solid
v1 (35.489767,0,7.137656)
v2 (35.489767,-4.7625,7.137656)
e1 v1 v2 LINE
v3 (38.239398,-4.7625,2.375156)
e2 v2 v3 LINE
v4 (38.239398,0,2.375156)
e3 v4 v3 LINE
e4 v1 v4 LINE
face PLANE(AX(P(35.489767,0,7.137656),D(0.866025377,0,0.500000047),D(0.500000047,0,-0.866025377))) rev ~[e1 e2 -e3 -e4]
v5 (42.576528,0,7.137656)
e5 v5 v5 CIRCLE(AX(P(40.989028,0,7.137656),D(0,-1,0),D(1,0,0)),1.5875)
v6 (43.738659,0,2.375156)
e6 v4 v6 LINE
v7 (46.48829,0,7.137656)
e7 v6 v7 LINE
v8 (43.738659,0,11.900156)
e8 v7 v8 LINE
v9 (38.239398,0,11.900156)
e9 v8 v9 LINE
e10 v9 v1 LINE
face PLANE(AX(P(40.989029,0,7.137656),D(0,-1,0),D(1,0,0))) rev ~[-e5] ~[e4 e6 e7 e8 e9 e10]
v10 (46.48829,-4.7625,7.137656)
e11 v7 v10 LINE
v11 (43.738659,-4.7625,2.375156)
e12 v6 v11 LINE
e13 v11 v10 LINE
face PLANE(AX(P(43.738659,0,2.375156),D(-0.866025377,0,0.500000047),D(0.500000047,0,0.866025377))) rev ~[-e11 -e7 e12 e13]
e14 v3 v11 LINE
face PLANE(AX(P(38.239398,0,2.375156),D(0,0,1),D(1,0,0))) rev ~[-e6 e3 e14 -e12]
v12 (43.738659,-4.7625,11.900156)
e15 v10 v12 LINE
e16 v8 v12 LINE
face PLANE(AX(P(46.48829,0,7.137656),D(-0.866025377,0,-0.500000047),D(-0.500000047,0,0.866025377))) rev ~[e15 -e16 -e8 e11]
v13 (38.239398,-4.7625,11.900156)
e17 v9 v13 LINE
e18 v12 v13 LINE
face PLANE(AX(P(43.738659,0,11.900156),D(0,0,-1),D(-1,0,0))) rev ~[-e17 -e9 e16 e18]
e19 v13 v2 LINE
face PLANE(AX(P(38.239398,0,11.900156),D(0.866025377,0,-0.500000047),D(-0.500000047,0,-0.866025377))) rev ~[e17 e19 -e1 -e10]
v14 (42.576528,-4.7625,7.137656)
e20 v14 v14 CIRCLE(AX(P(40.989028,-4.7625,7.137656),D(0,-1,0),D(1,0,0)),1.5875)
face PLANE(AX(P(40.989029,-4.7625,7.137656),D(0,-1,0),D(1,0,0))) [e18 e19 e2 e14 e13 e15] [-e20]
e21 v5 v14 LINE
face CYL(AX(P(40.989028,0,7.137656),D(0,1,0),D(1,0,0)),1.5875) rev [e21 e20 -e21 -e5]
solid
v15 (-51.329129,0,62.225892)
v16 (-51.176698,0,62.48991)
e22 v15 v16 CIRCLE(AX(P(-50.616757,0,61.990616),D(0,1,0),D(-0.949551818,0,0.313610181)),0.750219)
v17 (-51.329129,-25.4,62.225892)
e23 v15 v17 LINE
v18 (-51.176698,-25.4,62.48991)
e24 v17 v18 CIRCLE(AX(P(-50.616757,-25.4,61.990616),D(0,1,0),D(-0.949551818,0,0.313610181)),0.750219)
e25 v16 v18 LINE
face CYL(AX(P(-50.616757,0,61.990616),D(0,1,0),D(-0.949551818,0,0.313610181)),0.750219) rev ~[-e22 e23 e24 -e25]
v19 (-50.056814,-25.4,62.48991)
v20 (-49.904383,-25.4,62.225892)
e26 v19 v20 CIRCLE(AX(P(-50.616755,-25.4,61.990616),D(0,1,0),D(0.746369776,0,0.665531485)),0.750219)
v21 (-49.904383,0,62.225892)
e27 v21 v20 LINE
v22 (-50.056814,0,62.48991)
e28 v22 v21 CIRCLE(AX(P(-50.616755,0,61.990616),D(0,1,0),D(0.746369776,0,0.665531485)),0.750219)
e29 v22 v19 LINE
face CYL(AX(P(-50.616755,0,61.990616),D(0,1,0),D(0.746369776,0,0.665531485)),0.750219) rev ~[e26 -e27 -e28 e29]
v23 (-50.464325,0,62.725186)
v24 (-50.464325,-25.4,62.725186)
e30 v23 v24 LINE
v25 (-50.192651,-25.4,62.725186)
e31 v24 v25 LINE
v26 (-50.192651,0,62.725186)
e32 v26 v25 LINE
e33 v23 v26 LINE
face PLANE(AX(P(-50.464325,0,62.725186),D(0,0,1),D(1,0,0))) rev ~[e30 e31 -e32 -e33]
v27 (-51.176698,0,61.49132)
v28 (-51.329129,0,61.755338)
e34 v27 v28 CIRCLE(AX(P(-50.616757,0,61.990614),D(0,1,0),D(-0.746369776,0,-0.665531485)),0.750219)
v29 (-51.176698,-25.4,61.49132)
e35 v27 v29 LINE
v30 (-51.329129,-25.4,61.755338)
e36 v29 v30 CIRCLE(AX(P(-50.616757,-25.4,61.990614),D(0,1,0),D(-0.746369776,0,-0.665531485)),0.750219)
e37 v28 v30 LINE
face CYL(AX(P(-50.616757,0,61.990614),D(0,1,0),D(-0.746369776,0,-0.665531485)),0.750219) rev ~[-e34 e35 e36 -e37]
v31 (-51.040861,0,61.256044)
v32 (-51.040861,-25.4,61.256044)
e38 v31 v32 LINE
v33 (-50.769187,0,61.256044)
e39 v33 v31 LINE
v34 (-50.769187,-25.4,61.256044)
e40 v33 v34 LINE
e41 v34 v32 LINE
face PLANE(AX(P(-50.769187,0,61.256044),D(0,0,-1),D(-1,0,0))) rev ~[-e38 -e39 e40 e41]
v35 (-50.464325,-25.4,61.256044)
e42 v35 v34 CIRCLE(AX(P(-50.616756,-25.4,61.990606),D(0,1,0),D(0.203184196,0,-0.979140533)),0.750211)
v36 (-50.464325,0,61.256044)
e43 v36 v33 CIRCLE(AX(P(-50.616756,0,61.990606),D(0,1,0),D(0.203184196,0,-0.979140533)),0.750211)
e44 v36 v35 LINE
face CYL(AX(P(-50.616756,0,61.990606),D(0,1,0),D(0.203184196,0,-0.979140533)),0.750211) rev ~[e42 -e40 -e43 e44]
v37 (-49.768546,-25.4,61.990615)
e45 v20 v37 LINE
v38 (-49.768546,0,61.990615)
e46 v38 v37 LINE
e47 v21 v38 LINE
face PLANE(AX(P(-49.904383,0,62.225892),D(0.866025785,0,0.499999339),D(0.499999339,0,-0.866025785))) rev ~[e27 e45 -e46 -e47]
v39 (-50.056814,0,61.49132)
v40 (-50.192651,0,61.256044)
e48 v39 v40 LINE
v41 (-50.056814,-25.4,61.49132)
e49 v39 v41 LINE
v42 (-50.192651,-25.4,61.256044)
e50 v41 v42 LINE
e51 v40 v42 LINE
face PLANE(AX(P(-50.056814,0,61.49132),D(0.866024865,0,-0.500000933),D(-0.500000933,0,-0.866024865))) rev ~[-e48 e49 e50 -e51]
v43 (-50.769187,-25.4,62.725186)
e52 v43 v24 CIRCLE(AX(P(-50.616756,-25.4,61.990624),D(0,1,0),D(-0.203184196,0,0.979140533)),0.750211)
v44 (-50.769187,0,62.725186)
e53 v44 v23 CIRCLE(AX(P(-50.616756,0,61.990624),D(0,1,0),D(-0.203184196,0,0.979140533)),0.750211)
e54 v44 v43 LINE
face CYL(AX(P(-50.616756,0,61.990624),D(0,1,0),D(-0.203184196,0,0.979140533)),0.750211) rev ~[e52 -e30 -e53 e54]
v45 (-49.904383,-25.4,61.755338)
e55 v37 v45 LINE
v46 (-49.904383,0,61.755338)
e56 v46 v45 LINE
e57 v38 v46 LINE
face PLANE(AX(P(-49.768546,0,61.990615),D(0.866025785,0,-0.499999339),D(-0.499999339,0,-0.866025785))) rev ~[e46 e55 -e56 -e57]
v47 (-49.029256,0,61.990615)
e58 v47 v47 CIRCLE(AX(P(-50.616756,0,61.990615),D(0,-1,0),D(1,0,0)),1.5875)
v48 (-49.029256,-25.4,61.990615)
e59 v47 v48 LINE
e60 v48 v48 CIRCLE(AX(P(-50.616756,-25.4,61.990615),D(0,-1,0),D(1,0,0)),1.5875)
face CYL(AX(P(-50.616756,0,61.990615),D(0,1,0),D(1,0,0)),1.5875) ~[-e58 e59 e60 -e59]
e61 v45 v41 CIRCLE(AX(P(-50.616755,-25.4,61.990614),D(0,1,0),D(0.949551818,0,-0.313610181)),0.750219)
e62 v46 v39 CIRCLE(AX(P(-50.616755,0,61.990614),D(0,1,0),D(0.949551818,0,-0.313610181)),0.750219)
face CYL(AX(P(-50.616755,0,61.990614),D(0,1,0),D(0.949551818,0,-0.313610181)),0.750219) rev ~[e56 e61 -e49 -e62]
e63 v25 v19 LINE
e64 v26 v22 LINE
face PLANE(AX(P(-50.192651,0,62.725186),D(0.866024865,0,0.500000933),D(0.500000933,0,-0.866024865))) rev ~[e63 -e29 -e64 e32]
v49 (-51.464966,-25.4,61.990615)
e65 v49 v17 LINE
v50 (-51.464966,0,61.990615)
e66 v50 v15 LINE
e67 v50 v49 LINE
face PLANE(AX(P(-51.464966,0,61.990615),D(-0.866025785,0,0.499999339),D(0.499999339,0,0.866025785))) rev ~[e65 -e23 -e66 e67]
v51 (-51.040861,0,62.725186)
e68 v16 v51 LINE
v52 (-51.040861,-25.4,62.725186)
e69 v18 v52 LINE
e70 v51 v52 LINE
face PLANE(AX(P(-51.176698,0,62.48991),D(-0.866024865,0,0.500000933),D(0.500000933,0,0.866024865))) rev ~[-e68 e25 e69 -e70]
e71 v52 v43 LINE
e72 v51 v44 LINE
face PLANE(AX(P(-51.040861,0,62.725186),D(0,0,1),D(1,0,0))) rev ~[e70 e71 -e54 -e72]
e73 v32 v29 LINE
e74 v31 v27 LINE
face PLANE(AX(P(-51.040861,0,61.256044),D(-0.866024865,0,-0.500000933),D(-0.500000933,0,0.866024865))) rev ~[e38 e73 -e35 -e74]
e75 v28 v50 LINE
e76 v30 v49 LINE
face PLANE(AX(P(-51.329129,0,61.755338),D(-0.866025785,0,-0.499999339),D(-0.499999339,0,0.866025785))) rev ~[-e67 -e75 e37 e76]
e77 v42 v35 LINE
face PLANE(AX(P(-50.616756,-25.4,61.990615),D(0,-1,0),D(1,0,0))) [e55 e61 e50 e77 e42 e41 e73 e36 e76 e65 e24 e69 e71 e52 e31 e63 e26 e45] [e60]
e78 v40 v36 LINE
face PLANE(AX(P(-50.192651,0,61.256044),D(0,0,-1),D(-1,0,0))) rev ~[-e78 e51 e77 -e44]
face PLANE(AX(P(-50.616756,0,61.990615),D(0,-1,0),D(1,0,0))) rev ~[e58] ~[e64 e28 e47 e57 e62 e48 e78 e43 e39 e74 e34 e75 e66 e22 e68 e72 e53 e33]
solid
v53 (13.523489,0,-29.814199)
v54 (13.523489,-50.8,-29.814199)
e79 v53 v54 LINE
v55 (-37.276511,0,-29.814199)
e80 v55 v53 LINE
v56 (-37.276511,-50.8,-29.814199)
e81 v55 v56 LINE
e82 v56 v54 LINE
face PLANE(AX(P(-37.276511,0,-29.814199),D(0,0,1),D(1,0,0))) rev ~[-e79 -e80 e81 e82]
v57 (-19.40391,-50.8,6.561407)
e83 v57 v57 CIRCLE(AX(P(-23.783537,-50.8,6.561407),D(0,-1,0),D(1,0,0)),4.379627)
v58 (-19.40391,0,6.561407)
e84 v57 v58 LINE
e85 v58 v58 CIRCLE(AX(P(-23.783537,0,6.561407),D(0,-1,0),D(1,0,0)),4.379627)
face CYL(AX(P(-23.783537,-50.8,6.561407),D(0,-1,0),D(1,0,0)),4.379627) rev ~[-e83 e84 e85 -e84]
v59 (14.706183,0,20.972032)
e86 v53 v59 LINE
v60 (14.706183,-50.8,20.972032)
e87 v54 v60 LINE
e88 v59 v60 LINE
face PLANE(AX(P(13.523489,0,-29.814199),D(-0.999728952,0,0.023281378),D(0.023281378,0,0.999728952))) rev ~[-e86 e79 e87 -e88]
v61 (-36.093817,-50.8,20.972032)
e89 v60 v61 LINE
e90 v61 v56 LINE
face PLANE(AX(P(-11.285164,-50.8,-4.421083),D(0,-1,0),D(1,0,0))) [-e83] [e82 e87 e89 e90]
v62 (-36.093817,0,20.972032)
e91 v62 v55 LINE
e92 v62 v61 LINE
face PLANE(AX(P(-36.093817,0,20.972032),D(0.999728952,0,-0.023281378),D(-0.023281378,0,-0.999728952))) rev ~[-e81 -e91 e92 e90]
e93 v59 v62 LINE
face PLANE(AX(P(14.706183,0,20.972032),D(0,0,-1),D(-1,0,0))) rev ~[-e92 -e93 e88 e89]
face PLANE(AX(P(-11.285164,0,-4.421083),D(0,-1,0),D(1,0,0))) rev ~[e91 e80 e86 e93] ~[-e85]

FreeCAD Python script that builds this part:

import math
import FreeCAD as App
import Part
import Sketcher
Q = App.Units.Quantity


def add_polygon(sketch, points):
    """Adds a closed chain of lines whose ends are joined by coincident constraints."""
    first, n = sketch.GeometryCount, len(points)
    for a, b in zip(points, points[1:] + points[:1]):
        sketch.addGeometry(Part.LineSegment(App.Vector(*a, 0), App.Vector(*b, 0)), False)
    for i in range(n):
        sketch.addConstraint(Sketcher.Constraint("Coincident", first + i, 2, first + (i + 1) % n, 1))

doc = App.newDocument("Part")
body = doc.addObject("PartDesign::Body", "Body")

# Sketch on XZ plane
sketch1 = body.newObject("Sketcher::SketchObject", "Sketch")
sketch1.AttachmentSupport = (doc.getObject("XZ_Plane"), [""])
sketch1.MapMode = "FlatFace"
add_polygon(sketch1, [(15, 21), (-36, 21), (-37, -30), (14, -30)])  # lines 0-3
sketch1.addConstraint([
    Sketcher.Constraint("Horizontal", 0),
    Sketcher.Constraint("Horizontal", 2),
    Sketcher.Constraint("Parallel", 1, 3),
    Sketcher.Constraint("DistanceX", 0, 2, 0, 1, Q("2 in")),
    Sketcher.Constraint("Distance", 1, Q("2 in")),
    Sketcher.Constraint("DistanceY", 1, 2, -1, 1, 29.814199),
    Sketcher.Constraint("DistanceY", -1, 1, 0, 2, 20.972032),
    Sketcher.Constraint("DistanceX", 1, 2, -1, 1, 37.276511),
])
pad1 = body.newObject("PartDesign::Pad", "Pad")
pad1.Profile = sketch1
pad1.Length = Q("2 in")

# Sketch on XZ plane
sketch2 = body.newObject("Sketcher::SketchObject", "Sketch001")
sketch2.AttachmentSupport = (doc.getObject("XZ_Plane"), [""])
sketch2.MapMode = "FlatFace"
sketch2.AttachmentOffset = App.Placement(App.Vector(0, 0, 2 * 25.4), App.Rotation())
sketch2.addGeometry(Part.Circle(App.Vector(-23.8, 6.6, 0), App.Vector(0, 0, 1), 4.4), False)
sketch2.addConstraint([
    Sketcher.Constraint("Diameter", 0, 8.759254),
    Sketcher.Constraint("DistanceX", 0, 3, -1, 1, 23.783537),
    Sketcher.Constraint("DistanceY", -1, 1, 0, 3, 6.561407),
])
pocket1 = body.newObject("PartDesign::Pocket", "Pocket")
pocket1.Profile = sketch2
pocket1.Length = Q("2 in")
body2 = doc.addObject("PartDesign::Body", "Body001")

# Sketch on XZ plane
sketch3 = body2.newObject("Sketcher::SketchObject", "Sketch002")
sketch3.AttachmentSupport = (doc.getObject("XZ_Plane001"), [""])
sketch3.MapMode = "FlatFace"
add_polygon(sketch3, [(38.2, 2.4), (43.7, 2.4), (46.5, 7.1), (43.7, 11.9), (38.2, 11.9), (35.5, 7.1)])  # lines 0-5
sketch3.addGeometry(Part.Circle(App.Vector(41, 7.1, 0), App.Vector(0, 0, 1), 1.6), False)  # 6
sketch3.addConstraint([
    Sketcher.Constraint("Horizontal", 0),
    Sketcher.Constraint("Horizontal", 3),
    Sketcher.Constraint("Parallel", 1, 4),
    Sketcher.Constraint("Parallel", 2, 5),
    Sketcher.Constraint("Horizontal", 6, 3, 1, 2),
    Sketcher.Constraint("Horizontal", 1, 2, 4, 2),
    Sketcher.Constraint("Vertical", 0, 2, 2, 2),
    Sketcher.Constraint("Vertical", 3, 2, 5, 2),
    Sketcher.Constraint("Diameter", 6, Q("0.125 in")),
    Sketcher.Constraint("Angle", 1, Q("59.999997 deg")),
    Sketcher.Constraint("DistanceY", 0, 2, 6, 3, Q("0.1875 in")),
    Sketcher.Constraint("DistanceX", 0, 1, 0, 2, 5.499261),
    Sketcher.Constraint("DistanceX", -1, 1, 0, 2, 43.738659),
    Sketcher.Constraint("DistanceX", 6, 3, 0, 2, 2.749631),
    Sketcher.Constraint("DistanceY", -1, 1, 6, 3, 7.137656),
])
pad2 = body2.newObject("PartDesign::Pad", "Pad001")
pad2.Profile = sketch3
pad2.Length = Q("0.1875 in")
body3 = doc.addObject("PartDesign::Body", "Body002")

# Sketch on XZ plane
sketch4 = body3.newObject("Sketcher::SketchObject", "Sketch003")
sketch4.AttachmentSupport = (doc.getObject("XZ_Plane002"), [""])
sketch4.MapMode = "FlatFace"
sketch4.addGeometry([
    Part.Circle(App.Vector(-50.62, 61.99, 0), App.Vector(0, 0, 1), 1.59),  # 0
    Part.ArcOfCircle(Part.Circle(App.Vector(-50.62, 61.99, 0), App.Vector(0, 0, 1), 0.75), math.radians(138), math.radians(162)),  # 1
    Part.LineSegment(App.Vector(-51.18, 62.49, 0), App.Vector(-51.04, 62.73, 0)),  # 2
    Part.LineSegment(App.Vector(-51.04, 62.73, 0), App.Vector(-50.77, 62.73, 0)),  # 3
    Part.ArcOfCircle(Part.Circle(App.Vector(-50.62, 61.99, 0), App.Vector(0, 0, 1), 0.75), math.radians(78), math.radians(102)),  # 4
    Part.LineSegment(App.Vector(-50.46, 62.73, 0), App.Vector(-50.19, 62.73, 0)),  # 5
    Part.LineSegment(App.Vector(-50.19, 62.73, 0), App.Vector(-50.06, 62.49, 0)),  # 6
    Part.ArcOfCircle(Part.Circle(App.Vector(-50.62, 61.99, 0), App.Vector(0, 0, 1), 0.75), math.radians(18), math.radians(42)),  # 7
    Part.LineSegment(App.Vector(-49.9, 62.23, 0), App.Vector(-49.77, 61.99, 0)),  # 8
    Part.LineSegment(App.Vector(-49.77, 61.99, 0), App.Vector(-49.9, 61.76, 0)),  # 9
    Part.ArcOfCircle(Part.Circle(App.Vector(-50.62, 61.99, 0), App.Vector(0, 0, 1), 0.75), math.radians(-42), math.radians(-18)),  # 10
    Part.LineSegment(App.Vector(-50.06, 61.49, 0), App.Vector(-50.19, 61.26, 0)),  # 11
    Part.LineSegment(App.Vector(-50.19, 61.26, 0), App.Vector(-50.46, 61.26, 0)),  # 12
    Part.ArcOfCircle(Part.Circle(App.Vector(-50.62, 61.99, 0), App.Vector(0, 0, 1), 0.75), math.radians(-102), math.radians(-78)),  # 13
    Part.LineSegment(App.Vector(-50.77, 61.26, 0), App.Vector(-51.04, 61.26, 0)),  # 14
    Part.LineSegment(App.Vector(-51.04, 61.26, 0), App.Vector(-51.18, 61.49, 0)),  # 15
    Part.ArcOfCircle(Part.Circle(App.Vector(-50.62, 61.99, 0), App.Vector(0, 0, 1), 0.75), math.radians(-162), math.radians(-138)),  # 16
    Part.LineSegment(App.Vector(-51.33, 61.76, 0), App.Vector(-51.46, 61.99, 0)),  # 17
    Part.LineSegment(App.Vector(-51.46, 61.99, 0), App.Vector(-51.33, 62.23, 0)),  # 18
], False)
sketch4.addConstraint([
    Sketcher.Constraint("Coincident", 1, 1, 2, 1),
    Sketcher.Constraint("Coincident", 2, 2, 3, 1),
    Sketcher.Constraint("Coincident", 3, 2, 4, 2),
    Sketcher.Constraint("Coincident", 4, 1, 5, 1),
    Sketcher.Constraint("Coincident", 5, 2, 6, 1),
    Sketcher.Constraint("Coincident", 6, 2, 7, 2),
    Sketcher.Constraint("Coincident", 7, 1, 8, 1),
    Sketcher.Constraint("Coincident", 8, 2, 9, 1),
    Sketcher.Constraint("Coincident", 9, 2, 10, 2),
    Sketcher.Constraint("Coincident", 10, 1, 11, 1),
    Sketcher.Constraint("Coincident", 11, 2, 12, 1),
    Sketcher.Constraint("Coincident", 12, 2, 13, 2),
    Sketcher.Constraint("Coincident", 13, 1, 14, 1),
    Sketcher.Constraint("Coincident", 14, 2, 15, 1),
    Sketcher.Constraint("Coincident", 15, 2, 16, 2),
    Sketcher.Constraint("Coincident", 16, 1, 17, 1),
    Sketcher.Constraint("Coincident", 17, 2, 18, 1),
    Sketcher.Constraint("Coincident", 18, 2, 1, 2),
    Sketcher.Constraint("Horizontal", 3),
    Sketcher.Constraint("Horizontal", 5),
    Sketcher.Constraint("Horizontal", 12),
    Sketcher.Constraint("Horizontal", 14),
    Sketcher.Constraint("Coincident", 1, 3, 0, 3),
    Sketcher.Constraint("Coincident", 4, 3, 0, 3),
    Sketcher.Constraint("Coincident", 7, 3, 0, 3),
    Sketcher.Constraint("Coincident", 10, 3, 0, 3),
    Sketcher.Constraint("Coincident", 13, 3, 0, 3),
    Sketcher.Constraint("Coincident", 16, 3, 0, 3),
    Sketcher.Constraint("Equal", 1, 7),
    Sketcher.Constraint("Equal", 7, 10),
    Sketcher.Constraint("Equal", 4, 13),
    Sketcher.Constraint("Equal", 10, 16),
    Sketcher.Constraint("Parallel", 6, 8),
    Sketcher.Constraint("Parallel", 2, 9),
    Sketcher.Constraint("Parallel", 9, 11),
    Sketcher.Constraint("Parallel", 8, 15),
    Sketcher.Constraint("Parallel", 15, 17),
    Sketcher.Constraint("Parallel", 11, 18),
    Sketcher.Constraint("Horizontal", 3, 2, 4, 1),
    Sketcher.Constraint("Horizontal", 1, 1, 6, 2),
    Sketcher.Constraint("Horizontal", 16, 3, 8, 2),
    Sketcher.Constraint("Horizontal", 12, 2, 13, 1),
    Sketcher.Constraint("Horizontal", 10, 1, 15, 2),
    Sketcher.Constraint("Horizontal", 9, 2, 16, 1),
    Sketcher.Constraint("Horizontal", 8, 2, 17, 2),
    Sketcher.Constraint("Horizontal", 7, 1, 18, 2),
    Sketcher.Constraint("Vertical", 6, 2, 10, 1),
    Sketcher.Constraint("Vertical", 5, 2, 11, 2),
    Sketcher.Constraint("Equal", 6, 8),
    Sketcher.Constraint("Diameter", 0, Q("0.125 in")),
    Sketcher.Constraint("Radius", 1, 0.750219),
    Sketcher.Constraint("Radius", 4, 0.750211),
    Sketcher.Constraint("DistanceX", 15, 2, -1, 1, 51.176698),
    Sketcher.Constraint("DistanceX", 3, 1, 3, 2, 0.271674),
    Sketcher.Constraint("DistanceY", -1, 1, 1, 1, 62.48991),
    Sketcher.Constraint("DistanceX", 2, 2, -1, 1, 51.040861),
    Sketcher.Constraint("DistanceX", 5, 2, -1, 1, 50.192651),
])
pad3 = body3.newObject("PartDesign::Pad", "Pad002")
pad3.Profile = sketch4
pad3.Length = Q("1 in")

doc.recompute()
